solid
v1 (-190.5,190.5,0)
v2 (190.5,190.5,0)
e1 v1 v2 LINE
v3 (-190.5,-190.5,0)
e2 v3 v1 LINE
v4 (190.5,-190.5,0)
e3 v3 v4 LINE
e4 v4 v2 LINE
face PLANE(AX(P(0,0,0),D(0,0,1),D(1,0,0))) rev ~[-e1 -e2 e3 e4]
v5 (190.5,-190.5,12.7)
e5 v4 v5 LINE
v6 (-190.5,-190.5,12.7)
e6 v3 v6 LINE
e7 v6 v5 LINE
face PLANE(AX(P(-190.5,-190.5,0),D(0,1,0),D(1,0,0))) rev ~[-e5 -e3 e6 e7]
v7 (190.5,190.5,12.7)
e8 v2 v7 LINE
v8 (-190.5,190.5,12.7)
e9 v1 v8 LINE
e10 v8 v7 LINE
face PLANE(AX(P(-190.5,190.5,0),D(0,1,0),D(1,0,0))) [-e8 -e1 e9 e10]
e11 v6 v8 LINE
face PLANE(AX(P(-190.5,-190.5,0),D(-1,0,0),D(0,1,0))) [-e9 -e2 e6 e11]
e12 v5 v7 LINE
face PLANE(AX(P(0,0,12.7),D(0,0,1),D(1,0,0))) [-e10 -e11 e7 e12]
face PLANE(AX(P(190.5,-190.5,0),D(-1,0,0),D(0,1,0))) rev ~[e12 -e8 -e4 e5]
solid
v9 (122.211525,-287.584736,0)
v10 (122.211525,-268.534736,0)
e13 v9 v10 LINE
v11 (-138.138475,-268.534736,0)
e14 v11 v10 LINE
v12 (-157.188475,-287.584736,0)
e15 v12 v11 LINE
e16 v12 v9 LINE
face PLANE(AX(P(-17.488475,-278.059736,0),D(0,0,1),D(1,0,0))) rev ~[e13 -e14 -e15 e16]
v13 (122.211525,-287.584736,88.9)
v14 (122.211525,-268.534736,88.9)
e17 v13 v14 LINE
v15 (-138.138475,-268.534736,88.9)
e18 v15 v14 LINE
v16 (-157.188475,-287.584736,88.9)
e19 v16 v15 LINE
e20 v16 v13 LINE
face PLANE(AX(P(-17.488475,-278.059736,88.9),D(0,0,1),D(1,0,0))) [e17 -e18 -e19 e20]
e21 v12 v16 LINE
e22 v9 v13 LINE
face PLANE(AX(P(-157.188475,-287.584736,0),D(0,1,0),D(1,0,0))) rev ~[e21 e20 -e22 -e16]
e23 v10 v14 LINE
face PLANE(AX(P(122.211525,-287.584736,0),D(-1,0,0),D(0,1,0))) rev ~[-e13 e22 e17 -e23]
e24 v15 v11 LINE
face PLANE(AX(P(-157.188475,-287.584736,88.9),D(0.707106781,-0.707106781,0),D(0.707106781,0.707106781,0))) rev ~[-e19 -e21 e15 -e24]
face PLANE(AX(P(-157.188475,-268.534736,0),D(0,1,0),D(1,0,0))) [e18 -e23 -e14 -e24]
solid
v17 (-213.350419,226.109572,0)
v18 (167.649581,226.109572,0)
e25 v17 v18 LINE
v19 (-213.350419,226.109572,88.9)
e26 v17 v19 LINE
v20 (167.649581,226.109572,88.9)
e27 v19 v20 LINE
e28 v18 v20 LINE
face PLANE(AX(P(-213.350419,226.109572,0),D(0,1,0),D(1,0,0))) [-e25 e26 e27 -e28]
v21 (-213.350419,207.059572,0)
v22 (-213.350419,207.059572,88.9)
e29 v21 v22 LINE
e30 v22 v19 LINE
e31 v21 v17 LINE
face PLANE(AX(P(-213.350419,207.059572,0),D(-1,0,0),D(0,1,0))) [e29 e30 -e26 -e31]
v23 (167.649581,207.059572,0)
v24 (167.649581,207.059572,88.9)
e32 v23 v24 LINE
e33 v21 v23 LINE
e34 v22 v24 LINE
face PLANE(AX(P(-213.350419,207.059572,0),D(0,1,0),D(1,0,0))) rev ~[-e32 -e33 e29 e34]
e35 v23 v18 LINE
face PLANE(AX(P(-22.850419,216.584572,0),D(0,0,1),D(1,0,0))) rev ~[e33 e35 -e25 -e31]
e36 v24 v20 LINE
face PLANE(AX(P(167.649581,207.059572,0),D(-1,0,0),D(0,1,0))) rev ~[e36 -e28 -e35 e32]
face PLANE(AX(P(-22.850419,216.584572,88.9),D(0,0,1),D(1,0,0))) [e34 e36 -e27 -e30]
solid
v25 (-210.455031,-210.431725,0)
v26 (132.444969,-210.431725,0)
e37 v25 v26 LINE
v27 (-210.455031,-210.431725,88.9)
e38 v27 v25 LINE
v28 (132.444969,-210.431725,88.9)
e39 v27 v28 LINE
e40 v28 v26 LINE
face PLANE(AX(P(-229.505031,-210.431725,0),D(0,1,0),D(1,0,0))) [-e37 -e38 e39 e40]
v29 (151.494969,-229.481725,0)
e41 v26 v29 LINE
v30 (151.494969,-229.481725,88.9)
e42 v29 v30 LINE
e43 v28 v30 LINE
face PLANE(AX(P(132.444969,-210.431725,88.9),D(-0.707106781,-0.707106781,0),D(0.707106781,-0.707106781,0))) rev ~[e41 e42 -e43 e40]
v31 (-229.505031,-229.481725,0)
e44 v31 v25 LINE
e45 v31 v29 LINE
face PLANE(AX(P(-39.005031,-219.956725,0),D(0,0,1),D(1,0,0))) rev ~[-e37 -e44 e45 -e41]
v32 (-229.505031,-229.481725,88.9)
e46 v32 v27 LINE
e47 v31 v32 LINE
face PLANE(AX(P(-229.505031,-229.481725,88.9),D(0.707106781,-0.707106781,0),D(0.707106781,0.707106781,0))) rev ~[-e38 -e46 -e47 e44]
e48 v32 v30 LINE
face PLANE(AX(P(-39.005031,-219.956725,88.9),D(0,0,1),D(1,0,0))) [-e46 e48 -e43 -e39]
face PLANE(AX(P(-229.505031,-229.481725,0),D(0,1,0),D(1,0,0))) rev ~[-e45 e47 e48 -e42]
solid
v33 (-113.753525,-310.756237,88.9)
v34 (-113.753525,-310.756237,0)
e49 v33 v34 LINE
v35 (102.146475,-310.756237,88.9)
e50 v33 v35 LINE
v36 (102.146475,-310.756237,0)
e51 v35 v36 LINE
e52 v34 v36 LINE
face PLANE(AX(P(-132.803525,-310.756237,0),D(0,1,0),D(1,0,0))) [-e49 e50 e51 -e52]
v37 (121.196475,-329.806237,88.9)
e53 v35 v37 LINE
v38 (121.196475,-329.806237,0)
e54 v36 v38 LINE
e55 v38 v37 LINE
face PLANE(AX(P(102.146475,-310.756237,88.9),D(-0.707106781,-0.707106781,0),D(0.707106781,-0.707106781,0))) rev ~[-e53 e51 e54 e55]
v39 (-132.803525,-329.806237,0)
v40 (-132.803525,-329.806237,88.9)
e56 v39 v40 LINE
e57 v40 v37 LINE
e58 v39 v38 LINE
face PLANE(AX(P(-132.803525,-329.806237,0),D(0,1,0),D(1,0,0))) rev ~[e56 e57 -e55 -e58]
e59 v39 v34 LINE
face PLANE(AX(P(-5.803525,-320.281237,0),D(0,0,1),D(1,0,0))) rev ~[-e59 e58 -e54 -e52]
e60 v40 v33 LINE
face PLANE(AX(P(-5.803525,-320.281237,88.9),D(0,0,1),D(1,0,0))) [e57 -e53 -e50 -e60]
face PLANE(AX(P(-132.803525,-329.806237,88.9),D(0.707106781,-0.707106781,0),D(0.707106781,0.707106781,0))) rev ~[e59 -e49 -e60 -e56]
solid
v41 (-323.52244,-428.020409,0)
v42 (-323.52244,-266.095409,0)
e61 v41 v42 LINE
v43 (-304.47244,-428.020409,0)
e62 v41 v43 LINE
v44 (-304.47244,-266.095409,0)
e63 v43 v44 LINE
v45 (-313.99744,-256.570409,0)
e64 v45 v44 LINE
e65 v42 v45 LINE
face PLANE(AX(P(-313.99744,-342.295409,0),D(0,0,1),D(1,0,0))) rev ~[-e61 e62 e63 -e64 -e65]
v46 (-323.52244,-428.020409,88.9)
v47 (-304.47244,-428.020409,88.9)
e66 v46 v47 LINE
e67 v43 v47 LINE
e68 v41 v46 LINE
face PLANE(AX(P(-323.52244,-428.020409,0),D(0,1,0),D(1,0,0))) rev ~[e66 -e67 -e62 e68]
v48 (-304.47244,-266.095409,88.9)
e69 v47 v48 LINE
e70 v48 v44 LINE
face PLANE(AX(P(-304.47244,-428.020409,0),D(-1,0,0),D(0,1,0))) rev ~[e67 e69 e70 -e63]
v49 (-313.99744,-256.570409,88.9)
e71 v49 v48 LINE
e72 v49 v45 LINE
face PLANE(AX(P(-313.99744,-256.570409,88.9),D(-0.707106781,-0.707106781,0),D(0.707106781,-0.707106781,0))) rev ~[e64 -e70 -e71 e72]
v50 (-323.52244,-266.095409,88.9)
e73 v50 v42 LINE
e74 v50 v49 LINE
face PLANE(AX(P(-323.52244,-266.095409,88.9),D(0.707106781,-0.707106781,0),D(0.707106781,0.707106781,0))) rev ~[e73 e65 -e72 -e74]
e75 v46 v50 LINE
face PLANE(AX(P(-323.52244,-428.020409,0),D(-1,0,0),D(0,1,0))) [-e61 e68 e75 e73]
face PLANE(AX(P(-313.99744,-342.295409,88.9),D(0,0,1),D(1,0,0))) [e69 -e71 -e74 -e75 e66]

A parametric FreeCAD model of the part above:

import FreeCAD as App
import Part
import Sketcher
Q = App.Units.Quantity

doc = App.newDocument("Part")
body = doc.addObject("PartDesign::Body", "Body")

# Sketch on XY plane
sketch1 = doc.addObject("Sketcher::SketchObject", "Sketch")
body.addObject(sketch1)
sketch1.AttachmentSupport = (doc.XY_Plane, [""])
sketch1.MapMode = "FlatFace"
sketch1.addGeometry([
    Part.LineSegment(App.Vector(-190, 190, 0), App.Vector(-190, -190, 0)),
    Part.LineSegment(App.Vector(-190, -190, 0), App.Vector(190, -190, 0)),
    Part.LineSegment(App.Vector(190, -190, 0), App.Vector(190, 190, 0)),
    Part.LineSegment(App.Vector(190, 190, 0), App.Vector(-190, 190, 0)),
], False)
sketch1.addConstraint([
    Sketcher.Constraint("Coincident", 0, 2, 1, 1),
    Sketcher.Constraint("Coincident", 1, 2, 2, 1),
    Sketcher.Constraint("Coincident", 2, 2, 3, 1),
    Sketcher.Constraint("Coincident", 3, 2, 0, 1),
    Sketcher.Constraint("Vertical", 0),
    Sketcher.Constraint("Horizontal", 1),
    Sketcher.Constraint("Vertical", 2),
    Sketcher.Constraint("Horizontal", 3),
    Sketcher.Constraint("Symmetric", 0, 2, 2, 2, -1, 1),
    Sketcher.Constraint("Equal", 3, 0),
    Sketcher.Constraint("DistanceX", 1, 1, 1, 2, Q("15 in")),
])
pad1 = doc.addObject("PartDesign::Pad", "Pad")
body.addObject(pad1)
pad1.Profile = sketch1
pad1.Length = Q("0.5 in")
body2 = doc.addObject("PartDesign::Body", "Body001")

# Sketch on XY plane
sketch2 = doc.addObject("Sketcher::SketchObject", "Sketch001")
body2.addObject(sketch2)
sketch2.AttachmentSupport = (doc.getObject("XY_Plane001"), [""])
sketch2.MapMode = "FlatFace"
sketch2.addGeometry([
    Part.LineSegment(App.Vector(-213, 226, 0), App.Vector(-213, 207, 0)),
    Part.LineSegment(App.Vector(-213, 207, 0), App.Vector(168, 207, 0)),
    Part.LineSegment(App.Vector(168, 207, 0), App.Vector(168, 226, 0)),
    Part.LineSegment(App.Vector(168, 226, 0), App.Vector(-213, 226, 0)),
], False)
sketch2.addConstraint([
    Sketcher.Constraint("Coincident", 0, 2, 1, 1),
    Sketcher.Constraint("Coincident", 1, 2, 2, 1),
    Sketcher.Constraint("Coincident", 2, 2, 3, 1),
    Sketcher.Constraint("Coincident", 3, 2, 0, 1),
    Sketcher.Constraint("Vertical", 0),
    Sketcher.Constraint("Horizontal", 1),
    Sketcher.Constraint("Vertical", 2),
    Sketcher.Constraint("Horizontal", 3),
    Sketcher.Constraint("DistanceX", 1, 1, 1, 2, Q("15 in")),
    Sketcher.Constraint("DistanceY", 0, 2, 0, 1, Q("0.75 in")),
    Sketcher.Constraint("DistanceX", 0, 2, -1, 1, 213.350419),
    Sketcher.Constraint("DistanceY", -1, 1, 0, 2, 207.059572),
])
pad2 = doc.addObject("PartDesign::Pad", "Pad001")
body2.addObject(pad2)
pad2.Profile = sketch2
pad2.Length = Q("3.5 in")
body3 = doc.addObject("PartDesign::Body", "Body002")

# Sketch on XY plane
sketch3 = doc.addObject("Sketcher::SketchObject", "Sketch002")
body3.addObject(sketch3)
sketch3.AttachmentSupport = (doc.getObject("XY_Plane002"), [""])
sketch3.MapMode = "FlatFace"
sketch3.addGeometry([
    Part.LineSegment(App.Vector(-230, -210, 0), App.Vector(-230, -229, 0)),
    Part.LineSegment(App.Vector(-230, -229, 0), App.Vector(151, -229, 0)),
    Part.LineSegment(App.Vector(151, -229, 0), App.Vector(151, -210, 0)),
    Part.LineSegment(App.Vector(151, -210, 0), App.Vector(-230, -210, 0)),
], False)
sketch3.addConstraint([
    Sketcher.Constraint("Coincident", 0, 2, 1, 1),
    Sketcher.Constraint("Coincident", 1, 2, 2, 1),
    Sketcher.Constraint("Coincident", 2, 2, 3, 1),
    Sketcher.Constraint("Coincident", 3, 2, 0, 1),
    Sketcher.Constraint("Vertical", 0),
    Sketcher.Constraint("Horizontal", 1),
    Sketcher.Constraint("Vertical", 2),
    Sketcher.Constraint("Horizontal", 3),
    Sketcher.Constraint("DistanceX", 1, 1, 1, 2, Q("15 in")),
    Sketcher.Constraint("DistanceY", 0, 2, 0, 1, Q("0.75 in")),
    Sketcher.Constraint("DistanceX", 0, 2, -1, 1, 229.505031),
    Sketcher.Constraint("DistanceY", 0, 2, -1, 1, 229.481725),
])
pad3 = doc.addObject("PartDesign::Pad", "Pad002")
body3.addObject(pad3)
pad3.Profile = sketch3
pad3.Length = Q("3.5 in")

# Sketch on XY plane
sketch4 = doc.addObject("Sketcher::SketchObject", "Sketch003")
body3.addObject(sketch4)
sketch4.AttachmentSupport = (doc.getObject("XY_Plane002"), [""])
sketch4.MapMode = "FlatFace"
sketch4.AttachmentOffset = App.Placement(App.Vector(0, 0, 3.5 * 25.4), App.Rotation())
sketch4.addGeometry([
    Part.LineSegment(App.Vector(-210, -210, 0), App.Vector(-230, -210, 0)),  # 0
    Part.LineSegment(App.Vector(-230, -210, 0), App.Vector(-230, -229, 0)),  # 1
    Part.LineSegment(App.Vector(-230, -229, 0), App.Vector(-210, -210, 0)),  # 2
    Part.LineSegment(App.Vector(151, -229, 0), App.Vector(151, -210, 0)),  # 3
    Part.LineSegment(App.Vector(151, -210, 0), App.Vector(132, -210, 0)),  # 4
    Part.LineSegment(App.Vector(132, -210, 0), App.Vector(151, -229, 0)),  # 5
], False)
sketch4.addConstraint([
    Sketcher.Constraint("Coincident", 0, 2, 1, 1),
    Sketcher.Constraint("Coincident", 1, 2, 2, 1),
    Sketcher.Constraint("Coincident", 2, 2, 0, 1),
    Sketcher.Constraint("Coincident", 3, 2, 4, 1),
    Sketcher.Constraint("Coincident", 4, 2, 5, 1),
    Sketcher.Constraint("Coincident", 5, 2, 3, 1),
    Sketcher.Constraint("Horizontal", 0),
    Sketcher.Constraint("Vertical", 1),
    Sketcher.Constraint("Vertical", 3),
    Sketcher.Constraint("Horizontal", 4),
    Sketcher.Constraint("Perpendicular", 2, 5),
    Sketcher.Constraint("Horizontal", 2, 2, 3, 2),
    Sketcher.Constraint("Horizontal", 1, 2, 5, 2),
    Sketcher.Constraint("Equal", 0, 4),
    Sketcher.Constraint("DistanceX", 0, 2, 3, 2, Q("15 in")),
    Sketcher.Constraint("DistanceX", 0, 2, 0, 1, Q("0.75 in")),
    Sketcher.Constraint("DistanceX", 0, 2, -1, 1, 229.505031),
    Sketcher.Constraint("DistanceY", 0, 2, -1, 1, 210.431725),
])
pocket1 = doc.addObject("PartDesign::Pocket", "Pocket")
body3.addObject(pocket1)
pocket1.Profile = sketch4
pocket1.Type = "ThroughAll"
body4 = doc.addObject("PartDesign::Body", "Body003")

# Sketch on XY plane
sketch5 = doc.addObject("Sketcher::SketchObject", "Sketch004")
body4.addObject(sketch5)
sketch5.AttachmentSupport = (doc.getObject("XY_Plane003"), [""])
sketch5.MapMode = "FlatFace"
sketch5.addGeometry([
    Part.LineSegment(App.Vector(-157, -269, 0), App.Vector(-157, -288, 0)),
    Part.LineSegment(App.Vector(-157, -288, 0), App.Vector(122, -288, 0)),
    Part.LineSegment(App.Vector(122, -288, 0), App.Vector(122, -269, 0)),
    Part.LineSegment(App.Vector(122, -269, 0), App.Vector(-157, -269, 0)),
], False)
sketch5.addConstraint([
    Sketcher.Constraint("Coincident", 0, 2, 1, 1),
    Sketcher.Constraint("Coincident", 1, 2, 2, 1),
    Sketcher.Constraint("Coincident", 2, 2, 3, 1),
    Sketcher.Constraint("Coincident", 3, 2, 0, 1),
    Sketcher.Constraint("Vertical", 0),
    Sketcher.Constraint("Horizontal", 1),
    Sketcher.Constraint("Vertical", 2),
    Sketcher.Constraint("Horizontal", 3),
    Sketcher.Constraint("DistanceX", 1, 1, 1, 2, Q("11 in")),
    Sketcher.Constraint("DistanceY", 0, 2, 0, 1, Q("0.75 in")),
    Sketcher.Constraint("DistanceX", 0, 2, -1, 1, 157.188475),
    Sketcher.Constraint("DistanceY", 0, 2, -1, 1, 287.584736),
])
pad4 = doc.addObject("PartDesign::Pad", "Pad003")
body4.addObject(pad4)
pad4.Profile = sketch5
pad4.Length = Q("3.5 in")

# Sketch on XY plane
sketch6 = doc.addObject("Sketcher::SketchObject", "Sketch005")
body4.addObject(sketch6)
sketch6.AttachmentSupport = (doc.getObject("XY_Plane003"), [""])
sketch6.MapMode = "FlatFace"
sketch6.AttachmentOffset = App.Placement(App.Vector(0, 0, 3.5 * 25.4), App.Rotation())
sketch6.addGeometry([
    Part.LineSegment(App.Vector(-138, -269, 0), App.Vector(-157, -269, 0)),
    Part.LineSegment(App.Vector(-157, -269, 0), App.Vector(-157, -288, 0)),
    Part.LineSegment(App.Vector(-157, -288, 0), App.Vector(-138, -269, 0)),
], False)
sketch6.addConstraint([
    Sketcher.Constraint("Coincident", 0, 2, 1, 1),
    Sketcher.Constraint("Coincident", 1, 2, 2, 1),
    Sketcher.Constraint("Coincident", 2, 2, 0, 1),
    Sketcher.Constraint("Horizontal", 0),
    Sketcher.Constraint("Vertical", 1),
    Sketcher.Constraint("Equal", 0, 1),
    Sketcher.Constraint("DistanceX", 0, 2, 0, 1, Q("0.75 in")),
    Sketcher.Constraint("DistanceX", 0, 2, -1, 1, 157.188475),
    Sketcher.Constraint("DistanceY", 0, 2, -1, 1, 268.534736),
])
pocket2 = doc.addObject("PartDesign::Pocket", "Pocket001")
body4.addObject(pocket2)
pocket2.Profile = sketch6
pocket2.Type = "ThroughAll"
body5 = doc.addObject("PartDesign::Body", "Body004")

# Sketch on XY plane
sketch7 = doc.addObject("Sketcher::SketchObject", "Sketch006")
body5.addObject(sketch7)
sketch7.AttachmentSupport = (doc.getObject("XY_Plane004"), [""])
sketch7.MapMode = "FlatFace"
sketch7.addGeometry([
    Part.LineSegment(App.Vector(-133, -311, 0), App.Vector(-133, -330, 0)),
    Part.LineSegment(App.Vector(-133, -330, 0), App.Vector(121, -330, 0)),
    Part.LineSegment(App.Vector(121, -330, 0), App.Vector(121, -311, 0)),
    Part.LineSegment(App.Vector(121, -311, 0), App.Vector(-133, -311, 0)),
], False)
sketch7.addConstraint([
    Sketcher.Constraint("Coincident", 0, 2, 1, 1),
    Sketcher.Constraint("Coincident", 1, 2, 2, 1),
    Sketcher.Constraint("Coincident", 2, 2, 3, 1),
    Sketcher.Constraint("Coincident", 3, 2, 0, 1),
    Sketcher.Constraint("Vertical", 0),
    Sketcher.Constraint("Horizontal", 1),
    Sketcher.Constraint("Vertical", 2),
    Sketcher.Constraint("Horizontal", 3),
    Sketcher.Constraint("DistanceX", 1, 1, 1, 2, Q("10 in")),
    Sketcher.Constraint("DistanceY", 0, 2, 0, 1, Q("0.75 in")),
    Sketcher.Constraint("DistanceX", 0, 2, -1, 1, 132.803525),
    Sketcher.Constraint("DistanceY", 0, 2, -1, 1, 329.806237),
])
pad5 = doc.addObject("PartDesign::Pad", "Pad004")
body5.addObject(pad5)
pad5.Profile = sketch7
pad5.Length = Q("3.5 in")

# Sketch on XY plane
sketch8 = doc.addObject("Sketcher::SketchObject", "Sketch007")
body5.addObject(sketch8)
sketch8.AttachmentSupport = (doc.getObject("XY_Plane004"), [""])
sketch8.MapMode = "FlatFace"
sketch8.AttachmentOffset = App.Placement(App.Vector(0, 0, 3.5 * 25.4), App.Rotation())
sketch8.addGeometry([
    Part.LineSegment(App.Vector(-133, -311, 0), App.Vector(-133, -330, 0)),  # 0
    Part.LineSegment(App.Vector(-133, -330, 0), App.Vector(-114, -311, 0)),  # 1
    Part.LineSegment(App.Vector(-114, -311, 0), App.Vector(-133, -311, 0)),  # 2
    Part.LineSegment(App.Vector(121, -311, 0), App.Vector(102, -311, 0)),  # 3
    Part.LineSegment(App.Vector(102, -311, 0), App.Vector(121, -330, 0)),  # 4
    Part.LineSegment(App.Vector(121, -330, 0), App.Vector(121, -311, 0)),  # 5
], False)
sketch8.addConstraint([
    Sketcher.Constraint("Coincident", 0, 2, 1, 1),
    Sketcher.Constraint("Coincident", 1, 2, 2, 1),
    Sketcher.Constraint("Coincident", 2, 2, 0, 1),
    Sketcher.Constraint("Coincident", 3, 2, 4, 1),
    Sketcher.Constraint("Coincident", 4, 2, 5, 1),
    Sketcher.Constraint("Coincident", 5, 2, 3, 1),
    Sketcher.Constraint("Vertical", 0),
    Sketcher.Constraint("Horizontal", 2),
    Sketcher.Constraint("Horizontal", 3),
    Sketcher.Constraint("Vertical", 5),
    Sketcher.Constraint("Perpendicular", 1, 4),
    Sketcher.Constraint("Horizontal", 2, 2, 3, 2),
    Sketcher.Constraint("Horizontal", 0, 2, 4, 2),
    Sketcher.Constraint("Equal", 2, 3),
    Sketcher.Constraint("DistanceX", 0, 2, 4, 2, Q("10 in")),
    Sketcher.Constraint("DistanceX", 2, 2, 2, 1, Q("0.75 in")),
    Sketcher.Constraint("DistanceX", 0, 2, -1, 1, 132.803525),
    Sketcher.Constraint("DistanceY", 0, 2, -1, 1, 329.806237),
])
pocket3 = doc.addObject("PartDesign::Pocket", "Pocket002")
body5.addObject(pocket3)
pocket3.Profile = sketch8
pocket3.Type = "ThroughAll"
body6 = doc.addObject("PartDesign::Body", "Body005")

# Sketch on XY plane
sketch9 = doc.addObject("Sketcher::SketchObject", "Sketch008")
body6.addObject(sketch9)
sketch9.AttachmentSupport = (doc.getObject("XY_Plane005"), [""])
sketch9.MapMode = "FlatFace"
sketch9.addGeometry([
    Part.LineSegment(App.Vector(-324, -257, 0), App.Vector(-324, -428, 0)),
    Part.LineSegment(App.Vector(-324, -428, 0), App.Vector(-304, -428, 0)),
    Part.LineSegment(App.Vector(-304, -428, 0), App.Vector(-304, -257, 0)),
    Part.LineSegment(App.Vector(-304, -257, 0), App.Vector(-324, -257, 0)),
], False)
sketch9.addConstraint([
    Sketcher.Constraint("Coincident", 0, 2, 1, 1),
    Sketcher.Constraint("Coincident", 1, 2, 2, 1),
    Sketcher.Constraint("Coincident", 2, 2, 3, 1),
    Sketcher.Constraint("Coincident", 3, 2, 0, 1),
    Sketcher.Constraint("Vertical", 0),
    Sketcher.Constraint("Horizontal", 1),
    Sketcher.Constraint("Vertical", 2),
    Sketcher.Constraint("Horizontal", 3),
    Sketcher.Constraint("DistanceX", 1, 1, 1, 2, Q("0.75 in")),
    Sketcher.Constraint("DistanceY", 0, 2, 0, 1, Q("6.75 in")),
    Sketcher.Constraint("DistanceX", 0, 2, -1, 1, 323.52244),
    Sketcher.Constraint("DistanceY", 0, 2, -1, 1, 428.020409),
])
pad6 = doc.addObject("PartDesign::Pad", "Pad005")
body6.addObject(pad6)
pad6.Profile = sketch9
pad6.Length = Q("3.5 in")

# Sketch on XY plane
sketch10 = doc.addObject("Sketcher::SketchObject", "Sketch009")
body6.addObject(sketch10)
sketch10.AttachmentSupport = (doc.getObject("XY_Plane005"), [""])
sketch10.MapMode = "FlatFace"
sketch10.AttachmentOffset = App.Placement(App.Vector(0, 0, 3.5 * 25.4), App.Rotation())
sketch10.addGeometry([
    Part.LineSegment(App.Vector(-324, -257, 0), App.Vector(-324, -266, 0)),  # 0
    Part.LineSegment(App.Vector(-324, -266, 0), App.Vector(-314, -257, 0)),  # 1
    Part.LineSegment(App.Vector(-314, -257, 0), App.Vector(-324, -257, 0)),  # 2
    Part.LineSegment(App.Vector(-304, -257, 0), App.Vector(-314, -257, 0)),  # 3
    Part.LineSegment(App.Vector(-314, -257, 0), App.Vector(-304, -266, 0)),  # 4
    Part.LineSegment(App.Vector(-304, -266, 0), App.Vector(-304, -257, 0)),  # 5
], False)
sketch10.addConstraint([
    Sketcher.Constraint("Coincident", 0, 2, 1, 1),
    Sketcher.Constraint("Coincident", 1, 2, 2, 1),
    Sketcher.Constraint("Coincident", 2, 2, 0, 1),
    Sketcher.Constraint("Coincident", 3, 2, 4, 1),
    Sketcher.Constraint("Coincident", 4, 2, 5, 1),
    Sketcher.Constraint("Coincident", 5, 2, 3, 1),
    Sketcher.Constraint("Vertical", 0),
    Sketcher.Constraint("Horizontal", 2),
    Sketcher.Constraint("Horizontal", 3),
    Sketcher.Constraint("Vertical", 5),
    Sketcher.Constraint("Coincident", 3, 2, 1, 2),
    Sketcher.Constraint("Perpendicular", 1, 4),
    Sketcher.Constraint("Horizontal", 0, 2, 4, 2),
    Sketcher.Constraint("Equal", 2, 3),
    Sketcher.Constraint("DistanceX", 2, 2, 2, 1, Q("0.375 in")),
    Sketcher.Constraint("DistanceX", 0, 2, -1, 1, 323.52244),
    Sketcher.Constraint("DistanceY", 0, 2, -1, 1, 266.095409),
])
pocket4 = doc.addObject("PartDesign::Pocket", "Pocket003")
body6.addObject(pocket4)
pocket4.Profile = sketch10
pocket4.Type = "ThroughAll"

doc.recompute()
